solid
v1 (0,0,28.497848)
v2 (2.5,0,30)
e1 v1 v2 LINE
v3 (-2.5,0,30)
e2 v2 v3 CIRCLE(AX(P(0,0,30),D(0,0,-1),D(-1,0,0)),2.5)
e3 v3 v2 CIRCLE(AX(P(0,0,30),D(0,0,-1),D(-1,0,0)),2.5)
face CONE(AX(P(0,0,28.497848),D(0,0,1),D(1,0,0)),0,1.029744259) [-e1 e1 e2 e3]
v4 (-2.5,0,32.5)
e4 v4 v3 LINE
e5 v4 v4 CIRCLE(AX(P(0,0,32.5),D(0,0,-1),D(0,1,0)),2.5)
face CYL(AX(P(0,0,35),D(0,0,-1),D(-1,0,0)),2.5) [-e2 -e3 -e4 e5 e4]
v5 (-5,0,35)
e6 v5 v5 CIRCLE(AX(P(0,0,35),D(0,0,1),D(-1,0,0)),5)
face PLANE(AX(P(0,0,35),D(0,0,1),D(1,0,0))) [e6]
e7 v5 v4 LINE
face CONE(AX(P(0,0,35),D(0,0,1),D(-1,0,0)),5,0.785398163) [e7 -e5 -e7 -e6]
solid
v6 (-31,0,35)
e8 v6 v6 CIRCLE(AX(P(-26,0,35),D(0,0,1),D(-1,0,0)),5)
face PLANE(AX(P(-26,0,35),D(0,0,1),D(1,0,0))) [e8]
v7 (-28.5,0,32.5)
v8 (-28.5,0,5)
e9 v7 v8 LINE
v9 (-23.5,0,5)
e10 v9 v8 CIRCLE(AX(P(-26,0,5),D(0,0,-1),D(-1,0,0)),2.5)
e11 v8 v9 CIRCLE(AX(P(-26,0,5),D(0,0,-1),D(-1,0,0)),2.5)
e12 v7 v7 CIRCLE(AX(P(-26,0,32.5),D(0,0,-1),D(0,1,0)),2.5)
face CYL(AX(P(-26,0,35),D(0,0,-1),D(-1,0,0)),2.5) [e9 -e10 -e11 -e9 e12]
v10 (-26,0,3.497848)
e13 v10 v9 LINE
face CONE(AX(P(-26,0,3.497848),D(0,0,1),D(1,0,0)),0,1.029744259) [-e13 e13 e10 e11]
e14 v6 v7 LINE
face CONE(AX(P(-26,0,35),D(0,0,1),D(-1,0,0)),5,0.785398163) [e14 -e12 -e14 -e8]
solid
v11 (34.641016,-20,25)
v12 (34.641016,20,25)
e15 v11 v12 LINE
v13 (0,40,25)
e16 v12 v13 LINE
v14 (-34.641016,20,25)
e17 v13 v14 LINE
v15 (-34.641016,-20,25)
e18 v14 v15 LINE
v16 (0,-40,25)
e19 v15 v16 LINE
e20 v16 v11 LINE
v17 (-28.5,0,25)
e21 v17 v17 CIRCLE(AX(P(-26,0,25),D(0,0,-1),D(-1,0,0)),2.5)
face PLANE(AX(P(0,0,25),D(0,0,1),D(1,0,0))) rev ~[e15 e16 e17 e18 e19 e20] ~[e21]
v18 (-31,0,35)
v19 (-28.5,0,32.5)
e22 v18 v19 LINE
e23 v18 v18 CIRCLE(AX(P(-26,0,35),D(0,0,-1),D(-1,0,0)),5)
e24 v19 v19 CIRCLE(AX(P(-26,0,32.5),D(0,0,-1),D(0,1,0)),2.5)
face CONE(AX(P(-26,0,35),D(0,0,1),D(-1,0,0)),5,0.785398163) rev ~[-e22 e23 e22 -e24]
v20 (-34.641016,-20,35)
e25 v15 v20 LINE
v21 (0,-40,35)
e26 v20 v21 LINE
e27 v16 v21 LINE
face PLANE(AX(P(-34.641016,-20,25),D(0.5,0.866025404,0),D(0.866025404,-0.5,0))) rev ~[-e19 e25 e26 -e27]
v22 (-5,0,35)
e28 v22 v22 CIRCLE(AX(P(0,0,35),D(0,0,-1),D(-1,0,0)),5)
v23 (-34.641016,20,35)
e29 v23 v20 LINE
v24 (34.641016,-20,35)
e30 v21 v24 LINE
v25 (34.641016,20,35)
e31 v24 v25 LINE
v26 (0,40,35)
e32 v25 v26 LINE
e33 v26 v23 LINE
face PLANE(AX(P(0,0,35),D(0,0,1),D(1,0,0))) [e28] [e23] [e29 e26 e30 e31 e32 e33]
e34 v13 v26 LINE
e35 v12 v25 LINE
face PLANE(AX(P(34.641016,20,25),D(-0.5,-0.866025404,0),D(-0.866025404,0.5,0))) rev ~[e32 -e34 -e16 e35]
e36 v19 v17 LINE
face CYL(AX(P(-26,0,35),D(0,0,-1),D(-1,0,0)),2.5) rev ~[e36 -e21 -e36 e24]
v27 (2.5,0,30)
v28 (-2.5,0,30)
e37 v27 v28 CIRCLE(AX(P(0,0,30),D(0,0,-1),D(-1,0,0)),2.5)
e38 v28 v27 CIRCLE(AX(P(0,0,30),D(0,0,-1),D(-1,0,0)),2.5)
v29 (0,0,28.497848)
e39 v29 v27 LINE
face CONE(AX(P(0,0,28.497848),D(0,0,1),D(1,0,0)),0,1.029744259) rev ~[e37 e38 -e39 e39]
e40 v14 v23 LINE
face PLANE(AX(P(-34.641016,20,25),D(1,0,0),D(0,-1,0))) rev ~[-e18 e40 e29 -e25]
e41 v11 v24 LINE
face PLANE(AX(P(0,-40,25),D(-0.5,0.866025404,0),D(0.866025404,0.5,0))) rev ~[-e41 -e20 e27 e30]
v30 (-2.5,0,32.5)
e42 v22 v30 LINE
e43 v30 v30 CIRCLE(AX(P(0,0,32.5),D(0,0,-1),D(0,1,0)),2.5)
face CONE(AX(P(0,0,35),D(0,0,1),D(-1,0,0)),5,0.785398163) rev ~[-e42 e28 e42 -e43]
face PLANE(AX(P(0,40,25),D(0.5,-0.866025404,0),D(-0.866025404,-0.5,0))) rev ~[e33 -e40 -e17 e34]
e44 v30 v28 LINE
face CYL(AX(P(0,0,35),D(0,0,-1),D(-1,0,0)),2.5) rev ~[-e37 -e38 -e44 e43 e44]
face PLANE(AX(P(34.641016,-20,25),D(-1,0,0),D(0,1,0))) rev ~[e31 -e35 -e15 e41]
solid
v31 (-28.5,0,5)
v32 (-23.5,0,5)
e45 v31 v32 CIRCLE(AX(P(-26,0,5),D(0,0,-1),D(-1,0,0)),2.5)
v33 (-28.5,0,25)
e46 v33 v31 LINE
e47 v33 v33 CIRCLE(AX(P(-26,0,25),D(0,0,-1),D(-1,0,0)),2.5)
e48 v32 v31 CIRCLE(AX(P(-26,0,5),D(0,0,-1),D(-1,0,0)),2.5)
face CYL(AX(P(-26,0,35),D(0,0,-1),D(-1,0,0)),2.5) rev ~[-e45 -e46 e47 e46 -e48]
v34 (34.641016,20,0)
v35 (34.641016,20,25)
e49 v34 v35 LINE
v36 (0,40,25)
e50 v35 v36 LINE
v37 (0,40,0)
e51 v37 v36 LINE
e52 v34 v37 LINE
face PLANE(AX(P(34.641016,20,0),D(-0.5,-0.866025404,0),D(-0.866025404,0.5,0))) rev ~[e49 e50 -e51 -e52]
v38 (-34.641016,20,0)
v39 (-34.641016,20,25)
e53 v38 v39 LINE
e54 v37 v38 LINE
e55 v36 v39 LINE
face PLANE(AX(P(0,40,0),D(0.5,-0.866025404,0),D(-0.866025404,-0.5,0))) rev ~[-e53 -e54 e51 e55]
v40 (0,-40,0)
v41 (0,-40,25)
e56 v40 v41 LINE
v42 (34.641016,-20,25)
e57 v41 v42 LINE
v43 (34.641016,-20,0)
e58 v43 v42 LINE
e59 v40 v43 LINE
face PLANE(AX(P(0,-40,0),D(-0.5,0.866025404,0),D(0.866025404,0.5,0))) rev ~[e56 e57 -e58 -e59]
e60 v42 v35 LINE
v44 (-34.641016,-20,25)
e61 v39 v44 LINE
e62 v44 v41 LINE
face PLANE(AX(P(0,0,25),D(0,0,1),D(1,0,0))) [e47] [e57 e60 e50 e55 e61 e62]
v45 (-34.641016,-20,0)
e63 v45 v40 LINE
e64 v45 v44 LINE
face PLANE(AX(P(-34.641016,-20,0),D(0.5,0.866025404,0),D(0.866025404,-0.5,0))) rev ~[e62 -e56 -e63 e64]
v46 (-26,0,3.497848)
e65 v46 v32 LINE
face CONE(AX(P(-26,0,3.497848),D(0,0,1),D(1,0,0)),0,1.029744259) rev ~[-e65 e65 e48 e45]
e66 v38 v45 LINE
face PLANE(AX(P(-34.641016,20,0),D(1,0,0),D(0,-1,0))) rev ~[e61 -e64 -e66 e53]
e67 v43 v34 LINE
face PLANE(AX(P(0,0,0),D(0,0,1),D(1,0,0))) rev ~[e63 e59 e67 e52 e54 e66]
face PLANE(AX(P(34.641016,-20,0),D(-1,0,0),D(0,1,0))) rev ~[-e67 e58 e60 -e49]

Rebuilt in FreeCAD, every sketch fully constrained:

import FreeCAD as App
import Part
import Sketcher
from FreeCAD import Vector
Q = App.Units.Quantity

doc = App.newDocument("Part")
body = doc.addObject("PartDesign::Body", "Body")

# Sketch on XY plane
sketch1 = body.newObject("Sketcher::SketchObject", "Sketch")
sketch1.AttachmentSupport = (doc.getObject("XY_Plane"), [""])
sketch1.MapMode = "FlatFace"
sketch1.addGeometry([
    Part.LineSegment(Vector(0, 40, 0), Vector(-35, 20, 0)),  # 0
    Part.LineSegment(Vector(-35, 20, 0), Vector(-35, -20, 0)),  # 1
    Part.LineSegment(Vector(-35, -20, 0), Vector(0, -40, 0)),  # 2
    Part.LineSegment(Vector(0, -40, 0), Vector(35, -20, 0)),  # 3
    Part.LineSegment(Vector(35, -20, 0), Vector(35, 20, 0)),  # 4
    Part.LineSegment(Vector(35, 20, 0), Vector(0, 40, 0)),  # 5
], False)
sketch1.addConstraint([
    Sketcher.Constraint("Coincident", 0, 2, 1, 1),
    Sketcher.Constraint("Coincident", 1, 2, 2, 1),
    Sketcher.Constraint("Coincident", 2, 2, 3, 1),
    Sketcher.Constraint("Coincident", 3, 2, 4, 1),
    Sketcher.Constraint("Coincident", 4, 2, 5, 1),
    Sketcher.Constraint("Coincident", 5, 2, 0, 1),
    Sketcher.Constraint("Vertical", 1),
    Sketcher.Constraint("Vertical", 4),
    Sketcher.Constraint("Symmetric", 0, 2, 3, 2, -1, 1),
    Sketcher.Constraint("Symmetric", 2, 2, 5, 2, -1, 1),
    Sketcher.Constraint("PointOnObject", 2, 2, -2),
    Sketcher.Constraint("Parallel", 2, 5),
    Sketcher.Constraint("Horizontal", 1, 2, 3, 2),
    Sketcher.Constraint("DistanceY", 1, 2, 1, 1, Q("40 mm")),
    Sketcher.Constraint("Angle", 0, Q("-150 deg")),
    Sketcher.Constraint("Distance", 0, Q("40 mm")),
])
pad1 = body.newObject("PartDesign::Pad", "Pad")
pad1.Profile = sketch1
pad1.Length = 25

# Sketch on XY plane
sketch2 = body.newObject("Sketcher::SketchObject", "Sketch001")
sketch2.AttachmentSupport = (doc.getObject("XY_Plane"), [""])
sketch2.MapMode = "FlatFace"
sketch2.AttachmentOffset = App.Placement(Vector(0, 0, 35), App.Rotation())
sketch2.addGeometry(Part.Circle(Vector(-26, 0, 0), Vector(0, 0, 1), 2.5), False)
sketch2.addConstraint([
    Sketcher.Constraint("PointOnObject", 0, 3, -1),
    Sketcher.Constraint("Diameter", 0, Q("5 mm")),
    Sketcher.Constraint("DistanceX", 0, 3, -1, 1, Q("26 mm")),
])
doc.recompute()
hole = body.newObject("PartDesign::Hole", "Hole")
hole.Profile = sketch2
hole.ThreadType = "None"
hole.Diameter = 5
hole.DepthType = "Dimension"
hole.Depth = 30
hole.DrillPoint = "Angled"
hole.DrillPointAngle = 118
hole.HoleCutType = "Countersink"
hole.HoleCutDiameter = 10
hole.HoleCutCountersinkAngle = 90
body2 = doc.addObject("PartDesign::Body", "Body001")

# Sketch on XY plane
sketch3 = body2.newObject("Sketcher::SketchObject", "Sketch002")
sketch3.AttachmentSupport = (doc.getObject("XY_Plane001"), [""])
sketch3.MapMode = "FlatFace"
sketch3.AttachmentOffset = App.Placement(Vector(0, 0, 25), App.Rotation())
sketch3.addGeometry([
    Part.LineSegment(Vector(35, 20, 0), Vector(0, 40, 0)),  # 0
    Part.LineSegment(Vector(0, 40, 0), Vector(-35, 20, 0)),  # 1
    Part.LineSegment(Vector(-35, 20, 0), Vector(-35, -20, 0)),  # 2
    Part.LineSegment(Vector(-35, -20, 0), Vector(0, -40, 0)),  # 3
    Part.LineSegment(Vector(0, -40, 0), Vector(35, -20, 0)),  # 4
    Part.LineSegment(Vector(35, -20, 0), Vector(35, 20, 0)),  # 5
], False)
sketch3.addConstraint([
    Sketcher.Constraint("Coincident", 0, 2, 1, 1),
    Sketcher.Constraint("Coincident", 1, 2, 2, 1),
    Sketcher.Constraint("Coincident", 2, 2, 3, 1),
    Sketcher.Constraint("Coincident", 3, 2, 4, 1),
    Sketcher.Constraint("Coincident", 4, 2, 5, 1),
    Sketcher.Constraint("Coincident", 5, 2, 0, 1),
    Sketcher.Constraint("Vertical", 2),
    Sketcher.Constraint("Vertical", 5),
    Sketcher.Constraint("Symmetric", 0, 2, 3, 2, -1, 1),
    Sketcher.Constraint("Symmetric", 1, 2, 4, 2, -1, 1),
    Sketcher.Constraint("PointOnObject", 0, 2, -2),
    Sketcher.Constraint("Parallel", 0, 3),
    Sketcher.Constraint("Horizontal", 2, 2, 4, 2),
    Sketcher.Constraint("DistanceY", 2, 2, 2, 1, Q("40 mm")),
    Sketcher.Constraint("Angle", 0, Q("150 deg")),
    Sketcher.Constraint("Distance", 0, Q("40 mm")),
])
pad2 = body2.newObject("PartDesign::Pad", "Pad001")
pad2.Profile = sketch3
pad2.Length = 10

# Sketch on XY plane
sketch4 = body2.newObject("Sketcher::SketchObject", "Sketch003")
sketch4.AttachmentSupport = (doc.getObject("XY_Plane001"), [""])
sketch4.MapMode = "FlatFace"
sketch4.AttachmentOffset = App.Placement(Vector(0, 0, 35), App.Rotation())
sketch4.addGeometry(Part.Circle(Vector(-26, 0, 0), Vector(0, 0, 1), 2.5), False)
sketch4.addConstraint([
    Sketcher.Constraint("PointOnObject", 0, 3, -1),
    Sketcher.Constraint("Diameter", 0, Q("5 mm")),
    Sketcher.Constraint("DistanceX", 0, 3, -1, 1, Q("26 mm")),
])
doc.recompute()
hole2 = body2.newObject("PartDesign::Hole", "Hole001")
hole2.Profile = sketch4
hole2.ThreadType = "None"
hole2.Diameter = 5
hole2.DepthType = "Dimension"
hole2.Depth = 30
hole2.DrillPoint = "Angled"
hole2.DrillPointAngle = 118
hole2.HoleCutType = "Countersink"
hole2.HoleCutDiameter = 10
hole2.HoleCutCountersinkAngle = 90
body3 = doc.addObject("PartDesign::Body", "Body002")

# Sketch on XY plane
sketch5 = body3.newObject("Sketcher::SketchObject", "Sketch004")
sketch5.AttachmentSupport = (doc.getObject("XY_Plane002"), [""])
sketch5.MapMode = "FlatFace"
sketch5.AttachmentOffset = App.Placement(Vector(0, 0, 35), App.Rotation())
sketch5.addGeometry(Part.Circle(Vector(-26, 0, 0), Vector(0, 0, 1), 5), False)
sketch5.addConstraint([
    Sketcher.Constraint("PointOnObject", 0, 3, -1),
    Sketcher.Constraint("Diameter", 0, Q("10 mm")),
    Sketcher.Constraint("DistanceX", 0, 3, -1, 1, Q("26 mm")),
])
pad3 = body3.newObject("PartDesign::Pad", "Pad002")
pad3.Profile = sketch5
pad3.Length = 35
pad3.Reversed = True
doc.recompute()

body4 = doc.addObject("PartDesign::Body", "Body003")
body4.BaseFeature = body2
boolean = body3.newObject("PartDesign::Boolean", "Boolean")
boolean.Type = "Cut"
boolean.addObjects([body4])
doc.recompute()

body5 = doc.addObject("PartDesign::Body", "Body004")
body5.BaseFeature = body
boolean2 = body3.newObject("PartDesign::Boolean", "Boolean001")
boolean2.Type = "Cut"
boolean2.addObjects([body5])
doc.recompute()

# Sketch on XY plane
sketch6 = body2.newObject("Sketcher::SketchObject", "Sketch005")
sketch6.AttachmentSupport = (doc.getObject("XY_Plane001"), [""])
sketch6.MapMode = "FlatFace"
sketch6.AttachmentOffset = App.Placement(Vector(0, 0, 35), App.Rotation())
sketch6.addGeometry(Part.Circle(Vector(0, 0, 0), Vector(0, 0, 1), 2.5), False)
sketch6.addConstraint([
    Sketcher.Constraint("Coincident", 0, 3, -1, 1),
    Sketcher.Constraint("Diameter", 0, Q("5 mm")),
])
doc.recompute()
hole3 = body2.newObject("PartDesign::Hole", "Hole002")
hole3.Profile = sketch6
hole3.ThreadType = "None"
hole3.Diameter = 5
hole3.DepthType = "Dimension"
hole3.Depth = 5
hole3.DrillPoint = "Angled"
hole3.DrillPointAngle = 118
hole3.HoleCutType = "Countersink"
hole3.HoleCutDiameter = 10
hole3.HoleCutCountersinkAngle = 90
body6 = doc.addObject("PartDesign::Body", "Body005")

# Sketch on XY plane
sketch7 = body6.newObject("Sketcher::SketchObject", "Sketch006")
sketch7.AttachmentSupport = (doc.getObject("XY_Plane005"), [""])
sketch7.MapMode = "FlatFace"
sketch7.AttachmentOffset = App.Placement(Vector(0, 0, 35), App.Rotation())
sketch7.addGeometry(Part.Circle(Vector(0, 0, 0), Vector(0, 0, 1), 5), False)
sketch7.addConstraint([
    Sketcher.Constraint("Coincident", 0, 3, -1, 1),
    Sketcher.Constraint("Diameter", 0, Q("10 mm")),
])
pad4 = body6.newObject("PartDesign::Pad", "Pad003")
pad4.Profile = sketch7
pad4.Length = 10
pad4.Reversed = True
doc.recompute()

body7 = doc.addObject("PartDesign::Body", "Body006")
body7.BaseFeature = body2
boolean3 = body6.newObject("PartDesign::Boolean", "Boolean002")
boolean3.Type = "Cut"
boolean3.addObjects([body7])
doc.recompute()

doc.recompute()
